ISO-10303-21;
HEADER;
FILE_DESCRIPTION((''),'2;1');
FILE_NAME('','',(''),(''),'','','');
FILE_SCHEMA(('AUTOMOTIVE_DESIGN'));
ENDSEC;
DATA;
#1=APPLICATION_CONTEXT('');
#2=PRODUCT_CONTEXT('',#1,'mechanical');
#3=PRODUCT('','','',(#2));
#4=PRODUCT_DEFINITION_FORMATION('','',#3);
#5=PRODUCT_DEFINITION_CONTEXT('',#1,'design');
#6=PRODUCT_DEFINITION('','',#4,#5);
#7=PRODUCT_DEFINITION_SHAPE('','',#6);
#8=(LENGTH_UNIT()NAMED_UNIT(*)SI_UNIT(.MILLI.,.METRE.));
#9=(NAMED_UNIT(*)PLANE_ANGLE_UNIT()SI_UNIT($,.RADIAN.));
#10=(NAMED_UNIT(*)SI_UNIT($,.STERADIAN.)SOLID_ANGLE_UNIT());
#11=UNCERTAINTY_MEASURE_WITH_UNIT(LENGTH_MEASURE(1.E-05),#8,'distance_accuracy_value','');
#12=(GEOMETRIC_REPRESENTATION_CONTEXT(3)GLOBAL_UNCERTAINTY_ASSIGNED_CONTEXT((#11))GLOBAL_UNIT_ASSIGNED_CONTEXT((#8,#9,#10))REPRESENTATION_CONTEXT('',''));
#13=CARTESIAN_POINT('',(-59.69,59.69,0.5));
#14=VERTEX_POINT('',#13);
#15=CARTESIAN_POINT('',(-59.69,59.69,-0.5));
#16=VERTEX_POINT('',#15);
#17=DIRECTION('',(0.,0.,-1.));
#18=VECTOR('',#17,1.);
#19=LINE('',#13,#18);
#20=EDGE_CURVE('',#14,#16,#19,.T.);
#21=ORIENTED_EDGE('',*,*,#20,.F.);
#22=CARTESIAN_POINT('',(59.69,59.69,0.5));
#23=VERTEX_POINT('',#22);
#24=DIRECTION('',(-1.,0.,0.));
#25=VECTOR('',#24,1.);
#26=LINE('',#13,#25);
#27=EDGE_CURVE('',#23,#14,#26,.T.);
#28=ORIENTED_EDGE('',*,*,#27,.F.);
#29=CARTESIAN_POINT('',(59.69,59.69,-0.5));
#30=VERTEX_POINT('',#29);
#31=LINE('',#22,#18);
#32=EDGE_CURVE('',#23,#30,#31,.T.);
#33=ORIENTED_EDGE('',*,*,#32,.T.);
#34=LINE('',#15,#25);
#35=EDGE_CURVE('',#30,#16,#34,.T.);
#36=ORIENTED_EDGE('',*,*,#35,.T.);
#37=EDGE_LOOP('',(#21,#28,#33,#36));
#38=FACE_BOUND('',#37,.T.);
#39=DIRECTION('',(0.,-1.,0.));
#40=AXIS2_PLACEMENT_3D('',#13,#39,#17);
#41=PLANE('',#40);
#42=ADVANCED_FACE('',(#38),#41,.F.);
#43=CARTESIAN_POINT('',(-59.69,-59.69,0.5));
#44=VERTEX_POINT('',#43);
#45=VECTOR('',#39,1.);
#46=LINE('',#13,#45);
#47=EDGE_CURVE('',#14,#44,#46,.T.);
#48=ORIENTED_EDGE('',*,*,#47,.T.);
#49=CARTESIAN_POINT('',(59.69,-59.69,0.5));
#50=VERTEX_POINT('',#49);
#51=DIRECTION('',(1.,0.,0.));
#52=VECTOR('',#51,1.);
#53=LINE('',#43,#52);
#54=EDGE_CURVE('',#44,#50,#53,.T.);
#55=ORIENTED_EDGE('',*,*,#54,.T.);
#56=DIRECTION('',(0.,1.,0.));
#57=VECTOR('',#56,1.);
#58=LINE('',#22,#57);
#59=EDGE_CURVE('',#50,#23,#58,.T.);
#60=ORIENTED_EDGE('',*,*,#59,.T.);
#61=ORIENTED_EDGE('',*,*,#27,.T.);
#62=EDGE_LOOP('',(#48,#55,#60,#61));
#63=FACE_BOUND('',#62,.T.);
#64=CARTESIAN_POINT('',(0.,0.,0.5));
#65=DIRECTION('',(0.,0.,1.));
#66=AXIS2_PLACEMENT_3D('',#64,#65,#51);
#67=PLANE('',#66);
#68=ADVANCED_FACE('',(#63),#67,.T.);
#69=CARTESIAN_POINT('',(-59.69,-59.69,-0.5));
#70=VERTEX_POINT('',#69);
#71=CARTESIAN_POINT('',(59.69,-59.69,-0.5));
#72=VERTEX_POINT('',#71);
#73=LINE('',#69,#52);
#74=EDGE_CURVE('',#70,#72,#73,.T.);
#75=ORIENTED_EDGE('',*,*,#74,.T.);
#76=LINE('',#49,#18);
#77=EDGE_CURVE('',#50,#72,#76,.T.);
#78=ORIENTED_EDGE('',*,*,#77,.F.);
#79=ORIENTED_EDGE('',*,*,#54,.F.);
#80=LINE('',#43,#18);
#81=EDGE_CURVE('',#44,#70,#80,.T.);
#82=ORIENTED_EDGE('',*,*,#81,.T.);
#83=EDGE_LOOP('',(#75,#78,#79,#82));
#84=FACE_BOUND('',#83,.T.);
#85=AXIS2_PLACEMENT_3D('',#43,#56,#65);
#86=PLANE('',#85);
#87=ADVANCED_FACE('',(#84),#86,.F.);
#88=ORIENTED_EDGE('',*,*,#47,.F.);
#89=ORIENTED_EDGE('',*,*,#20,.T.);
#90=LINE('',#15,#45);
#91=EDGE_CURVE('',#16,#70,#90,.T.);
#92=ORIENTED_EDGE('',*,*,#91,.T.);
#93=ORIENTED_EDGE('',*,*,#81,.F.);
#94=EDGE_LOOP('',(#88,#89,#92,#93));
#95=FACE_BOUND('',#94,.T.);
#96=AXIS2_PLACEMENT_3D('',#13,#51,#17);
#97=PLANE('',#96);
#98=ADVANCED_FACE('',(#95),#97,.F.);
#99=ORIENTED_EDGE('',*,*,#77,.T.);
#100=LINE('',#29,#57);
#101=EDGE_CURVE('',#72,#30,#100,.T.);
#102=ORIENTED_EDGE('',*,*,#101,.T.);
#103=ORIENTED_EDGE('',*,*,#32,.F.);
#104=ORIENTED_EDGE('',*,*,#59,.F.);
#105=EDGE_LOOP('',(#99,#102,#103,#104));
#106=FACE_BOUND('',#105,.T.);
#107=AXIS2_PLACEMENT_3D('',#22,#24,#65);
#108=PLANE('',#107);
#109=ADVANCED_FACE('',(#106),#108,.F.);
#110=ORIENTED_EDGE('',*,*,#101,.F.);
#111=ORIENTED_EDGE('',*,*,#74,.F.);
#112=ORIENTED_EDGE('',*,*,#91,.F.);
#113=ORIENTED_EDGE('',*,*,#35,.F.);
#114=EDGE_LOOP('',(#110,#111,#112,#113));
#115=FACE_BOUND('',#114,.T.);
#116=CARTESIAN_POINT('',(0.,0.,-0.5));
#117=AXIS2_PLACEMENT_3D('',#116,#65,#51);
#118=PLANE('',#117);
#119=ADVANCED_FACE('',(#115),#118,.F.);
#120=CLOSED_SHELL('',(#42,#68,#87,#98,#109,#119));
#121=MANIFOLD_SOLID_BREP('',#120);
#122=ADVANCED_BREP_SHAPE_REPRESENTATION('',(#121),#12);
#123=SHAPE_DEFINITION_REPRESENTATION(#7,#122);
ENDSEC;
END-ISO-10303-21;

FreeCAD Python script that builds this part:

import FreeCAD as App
import Part
import Sketcher
Q = App.Units.Quantity


def add_polygon(sketch, points):
    """Adds a closed chain of lines whose ends are joined by coincident constraints."""
    first, n = sketch.GeometryCount, len(points)
    for a, b in zip(points, points[1:] + points[:1]):
        sketch.addGeometry(Part.LineSegment(App.Vector(*a, 0), App.Vector(*b, 0)), False)
    for i in range(n):
        sketch.addConstraint(Sketcher.Constraint("Coincident", first + i, 2, first + (i + 1) % n, 1))

doc = App.newDocument("Part")
body = doc.addObject("PartDesign::Body", "Body")

# Sketch on XY plane
sketch1 = doc.addObject("Sketcher::SketchObject", "Sketch")
body.addObject(sketch1)
sketch1.AttachmentSupport = (doc.XY_Plane, [""])
sketch1.MapMode = "FlatFace"
add_polygon(sketch1, [(-59.69, 59.69), (-59.69, -59.69), (59.69, -59.69), (59.69, 59.69)])  # lines 0-3
sketch1.addConstraint([
    Sketcher.Constraint("Vertical", 0),
    Sketcher.Constraint("Horizontal", 1),
    Sketcher.Constraint("Vertical", 2),
    Sketcher.Constraint("Horizontal", 3),
    Sketcher.Constraint("Symmetric", 0, 2, 2, 2, -1, 1),
    Sketcher.Constraint("Equal", 3, 0),
    Sketcher.Constraint("DistanceX", 1, 1, 1, 2, Q("119.38 mm")),
])
pad1 = doc.addObject("PartDesign::Pad", "Pad")
body.addObject(pad1)
pad1.Profile = sketch1
pad1.Length = 1
pad1.Midplane = True

doc.recompute()
